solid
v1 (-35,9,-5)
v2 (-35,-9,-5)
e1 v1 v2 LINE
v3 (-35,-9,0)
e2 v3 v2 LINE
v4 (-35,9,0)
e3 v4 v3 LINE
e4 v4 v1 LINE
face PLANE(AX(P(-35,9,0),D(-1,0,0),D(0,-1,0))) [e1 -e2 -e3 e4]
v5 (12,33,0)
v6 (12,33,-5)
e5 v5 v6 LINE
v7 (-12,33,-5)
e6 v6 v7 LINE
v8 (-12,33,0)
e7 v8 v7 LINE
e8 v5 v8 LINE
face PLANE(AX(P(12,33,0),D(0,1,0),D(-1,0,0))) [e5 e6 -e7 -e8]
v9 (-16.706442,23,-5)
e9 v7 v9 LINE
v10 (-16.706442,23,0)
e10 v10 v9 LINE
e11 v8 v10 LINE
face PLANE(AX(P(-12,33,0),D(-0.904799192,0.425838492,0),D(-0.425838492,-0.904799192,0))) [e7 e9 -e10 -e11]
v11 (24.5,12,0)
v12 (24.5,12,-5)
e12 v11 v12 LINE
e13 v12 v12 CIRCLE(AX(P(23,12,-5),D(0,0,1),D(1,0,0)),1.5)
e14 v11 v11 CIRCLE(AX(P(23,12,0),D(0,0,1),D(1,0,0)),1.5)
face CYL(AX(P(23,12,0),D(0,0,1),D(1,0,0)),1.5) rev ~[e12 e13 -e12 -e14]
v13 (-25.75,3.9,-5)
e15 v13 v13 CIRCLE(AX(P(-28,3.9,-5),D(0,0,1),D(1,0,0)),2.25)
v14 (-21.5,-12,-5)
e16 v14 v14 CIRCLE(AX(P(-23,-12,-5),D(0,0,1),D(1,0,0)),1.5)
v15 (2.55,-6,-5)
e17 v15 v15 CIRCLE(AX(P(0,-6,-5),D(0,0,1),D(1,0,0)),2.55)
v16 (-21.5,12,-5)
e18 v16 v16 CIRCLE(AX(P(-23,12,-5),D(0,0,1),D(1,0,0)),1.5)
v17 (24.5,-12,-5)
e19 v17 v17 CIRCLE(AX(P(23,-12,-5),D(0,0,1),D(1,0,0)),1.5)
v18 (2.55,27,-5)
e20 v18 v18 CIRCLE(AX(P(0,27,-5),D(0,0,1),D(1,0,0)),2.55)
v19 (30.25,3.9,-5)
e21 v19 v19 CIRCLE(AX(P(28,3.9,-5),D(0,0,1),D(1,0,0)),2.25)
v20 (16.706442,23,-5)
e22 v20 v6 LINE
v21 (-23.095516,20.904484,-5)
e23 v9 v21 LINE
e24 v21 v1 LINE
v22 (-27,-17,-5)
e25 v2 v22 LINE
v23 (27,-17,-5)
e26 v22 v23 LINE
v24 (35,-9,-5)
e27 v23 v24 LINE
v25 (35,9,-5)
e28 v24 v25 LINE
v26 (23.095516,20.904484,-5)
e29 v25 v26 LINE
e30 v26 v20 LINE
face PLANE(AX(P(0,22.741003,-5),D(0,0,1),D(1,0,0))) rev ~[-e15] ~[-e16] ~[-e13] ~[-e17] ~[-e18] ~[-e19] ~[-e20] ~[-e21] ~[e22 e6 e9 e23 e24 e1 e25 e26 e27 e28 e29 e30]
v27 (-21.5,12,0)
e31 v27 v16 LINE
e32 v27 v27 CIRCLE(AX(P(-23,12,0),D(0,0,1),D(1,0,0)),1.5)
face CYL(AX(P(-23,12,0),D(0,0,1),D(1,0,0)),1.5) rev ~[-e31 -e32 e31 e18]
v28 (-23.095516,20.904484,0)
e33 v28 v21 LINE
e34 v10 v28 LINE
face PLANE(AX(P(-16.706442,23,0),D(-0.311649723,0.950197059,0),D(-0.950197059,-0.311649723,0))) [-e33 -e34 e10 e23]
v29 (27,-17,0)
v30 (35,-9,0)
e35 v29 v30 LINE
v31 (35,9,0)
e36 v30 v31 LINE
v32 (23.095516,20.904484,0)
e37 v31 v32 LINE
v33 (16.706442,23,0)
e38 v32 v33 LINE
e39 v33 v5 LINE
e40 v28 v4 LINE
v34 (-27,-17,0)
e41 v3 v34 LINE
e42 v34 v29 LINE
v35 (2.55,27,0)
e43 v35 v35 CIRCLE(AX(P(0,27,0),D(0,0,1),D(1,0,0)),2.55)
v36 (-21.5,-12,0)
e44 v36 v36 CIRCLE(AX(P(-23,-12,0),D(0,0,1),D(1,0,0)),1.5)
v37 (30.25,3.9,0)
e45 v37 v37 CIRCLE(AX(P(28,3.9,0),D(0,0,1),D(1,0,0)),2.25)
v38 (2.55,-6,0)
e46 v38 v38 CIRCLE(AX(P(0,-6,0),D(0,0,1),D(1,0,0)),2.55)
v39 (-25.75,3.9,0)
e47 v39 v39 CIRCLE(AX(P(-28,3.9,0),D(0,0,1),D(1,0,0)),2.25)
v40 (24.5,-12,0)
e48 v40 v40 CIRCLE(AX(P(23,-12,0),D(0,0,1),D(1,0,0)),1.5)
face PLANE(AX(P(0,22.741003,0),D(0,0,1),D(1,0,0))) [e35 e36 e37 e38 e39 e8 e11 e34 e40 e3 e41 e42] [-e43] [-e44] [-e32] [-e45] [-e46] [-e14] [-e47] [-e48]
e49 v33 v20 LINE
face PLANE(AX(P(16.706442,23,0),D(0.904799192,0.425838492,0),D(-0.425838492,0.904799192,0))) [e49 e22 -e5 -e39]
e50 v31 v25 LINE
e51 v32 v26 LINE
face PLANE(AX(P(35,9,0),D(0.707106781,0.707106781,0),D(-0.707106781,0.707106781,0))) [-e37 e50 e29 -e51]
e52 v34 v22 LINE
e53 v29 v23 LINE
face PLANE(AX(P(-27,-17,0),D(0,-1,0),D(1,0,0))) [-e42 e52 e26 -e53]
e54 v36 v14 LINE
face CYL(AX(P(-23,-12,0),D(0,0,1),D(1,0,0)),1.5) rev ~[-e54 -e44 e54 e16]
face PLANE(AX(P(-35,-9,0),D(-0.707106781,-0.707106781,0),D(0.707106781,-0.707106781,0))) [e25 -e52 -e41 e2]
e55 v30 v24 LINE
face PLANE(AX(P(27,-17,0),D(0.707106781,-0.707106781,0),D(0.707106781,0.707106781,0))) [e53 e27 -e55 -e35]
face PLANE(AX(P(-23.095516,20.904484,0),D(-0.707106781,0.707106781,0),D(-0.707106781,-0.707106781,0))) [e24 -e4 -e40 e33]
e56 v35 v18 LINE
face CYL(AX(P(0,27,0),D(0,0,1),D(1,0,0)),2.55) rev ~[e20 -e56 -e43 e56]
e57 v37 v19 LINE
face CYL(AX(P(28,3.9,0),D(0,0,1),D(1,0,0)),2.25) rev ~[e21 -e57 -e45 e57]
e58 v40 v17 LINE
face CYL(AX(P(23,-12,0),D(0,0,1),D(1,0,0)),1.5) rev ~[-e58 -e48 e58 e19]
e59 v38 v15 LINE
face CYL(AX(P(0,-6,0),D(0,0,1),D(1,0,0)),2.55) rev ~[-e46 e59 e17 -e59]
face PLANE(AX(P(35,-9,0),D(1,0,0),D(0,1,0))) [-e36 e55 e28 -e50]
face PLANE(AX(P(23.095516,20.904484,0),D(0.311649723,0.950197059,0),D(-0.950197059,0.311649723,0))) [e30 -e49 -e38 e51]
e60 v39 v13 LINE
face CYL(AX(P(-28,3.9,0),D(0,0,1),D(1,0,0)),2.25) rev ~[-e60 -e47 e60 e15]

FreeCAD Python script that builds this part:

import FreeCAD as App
import Part
import Sketcher

V = App.Vector
Q = App.Units.Quantity


def add_polygon(sketch, points):
    """Adds a closed chain of lines whose ends are joined by coincident constraints."""
    first, n = sketch.GeometryCount, len(points)
    for a, b in zip(points, points[1:] + points[:1]):
        sketch.addGeometry(Part.LineSegment(App.Vector(*a, 0), App.Vector(*b, 0)), False)
    for i in range(n):
        sketch.addConstraint(Sketcher.Constraint("Coincident", first + i, 2, first + (i + 1) % n, 1))

doc = App.newDocument("Part")
params = doc.addObject("Spreadsheet::Sheet", "Params")
for row, (alias, value) in enumerate([
    ("sketch1_diameter", "3 mm"),
    ("sketch1_diameter2", "4.5 mm"),
    ("sketch1_diameter3", "5.1 mm"),
    ("sketch1_width", "54 mm"),
    ("sketch1_width2", "24 mm"),
    ("pad1_length", "5 mm"),
], start=1):
    params.set(f"A{row}", alias)
    params.set(f"B{row}", "=" + value)
    params.setAlias(f"B{row}", alias)

body = doc.addObject("PartDesign::Body", "Body")

# Sketch on XY plane
sketch1 = body.newObject("Sketcher::SketchObject", "Sketch")
sketch1.AttachmentSupport = (doc.getObject("XY_Plane"), [""])
sketch1.MapMode = "FlatFace"
add_polygon(sketch1, [(-23.1, 20.9), (-35, 9), (-35, -9), (-27, -17), (27, -17), (35, -9), (35, 9), (23.1, 20.9), (16.7, 23), (12, 33), (-12, 33), (-16.7, 23)])  # lines 0-11
sketch1.addGeometry(Part.Circle(V(-23, -12, 0), V(0, 0, 1), 1.5), False)  # 12
sketch1.addGeometry(Part.Circle(V(-28, 3.9, 0), V(0, 0, 1), 2.2), False)  # 13
sketch1.addGeometry(Part.Circle(V(0, -6, 0), V(0, 0, 1), 2.5), False)  # 14
sketch1.addGeometry(Part.Circle(V(23, -12, 0), V(0, 0, 1), 1.5), False)  # 15
sketch1.addGeometry(Part.Circle(V(28, 3.9, 0), V(0, 0, 1), 2.2), False)  # 16
sketch1.addGeometry(Part.Circle(V(-23, 12, 0), V(0, 0, 1), 1.5), False)  # 17
sketch1.addGeometry(Part.Circle(V(23, 12, 0), V(0, 0, 1), 1.5), False)  # 18
sketch1.addGeometry(Part.Circle(V(0, 27, 0), V(0, 0, 1), 2.5), False)  # 19
sketch1.addConstraint([
    Sketcher.Constraint("Vertical", 1),
    Sketcher.Constraint("Horizontal", 3),
    Sketcher.Constraint("Vertical", 5),
    Sketcher.Constraint("Horizontal", 9),
    Sketcher.Constraint("Equal", 12, 15),
    Sketcher.Constraint("Equal", 13, 16),
    Sketcher.Constraint("Equal", 15, 17),
    Sketcher.Constraint("Equal", 17, 18),
    Sketcher.Constraint("Equal", 14, 19),
    Sketcher.Constraint("Symmetric", 15, 3, 17, 3, -1, 1),
    Sketcher.Constraint("Symmetric", 12, 3, 18, 3, -1, 1),
    Sketcher.Constraint("Symmetric", 0, 2, 4, 2, -1, 1),
    Sketcher.Constraint("Symmetric", 12, 3, 15, 3, -2),
    Sketcher.Constraint("Symmetric", 13, 3, 16, 3, -2),
    Sketcher.Constraint("Symmetric", 7, 2, 10, 2, -2),
    Sketcher.Constraint("Symmetric", 6, 2, 11, 2, -2),
    Sketcher.Constraint("PointOnObject", 14, 3, -2),
    Sketcher.Constraint("PointOnObject", 19, 3, -2),
    Sketcher.Constraint("Perpendicular", 0, 2),
    Sketcher.Constraint("Perpendicular", 2, 4),
    Sketcher.Constraint("Perpendicular", 4, 6),
    Sketcher.Constraint("Horizontal", 1, 2, 4, 2),
    Sketcher.Constraint("Horizontal", 0, 2, 5, 2),
    Sketcher.Constraint("Equal", 8, 10),
    Sketcher.Constraint("Diameter", 12, Q("3 mm")),
    Sketcher.Constraint("Diameter", 13, Q("4.5 mm")),
    Sketcher.Constraint("Diameter", 14, Q("5.1 mm")),
    Sketcher.Constraint("DistanceX", 3, 1, 3, 2, Q("54 mm")),
    Sketcher.Constraint("DistanceX", 9, 2, 9, 1, Q("24 mm")),
    Sketcher.Constraint("DistanceY", 1, 2, 1, 1, Q("18 mm")),
    Sketcher.Constraint("DistanceX", 12, 3, -1, 1, Q("23 mm")),
    Sketcher.Constraint("DistanceY", 12, 3, -1, 1, Q("12 mm")),
    Sketcher.Constraint("DistanceX", 13, 3, -1, 1, Q("28 mm")),
    Sketcher.Constraint("DistanceY", 14, 3, -1, 1, Q("6 mm")),
    Sketcher.Constraint("DistanceY", -1, 1, 19, 3, Q("27 mm")),
    Sketcher.Constraint("DistanceX", 0, 2, -1, 1, Q("35 mm")),
    Sketcher.Constraint("DistanceY", -1, 1, 7, 2, Q("23 mm")),
    Sketcher.Constraint("DistanceY", -1, 1, 8, 2, Q("33 mm")),
    Sketcher.Constraint("DistanceY", -1, 1, 13, 3, Q("3.9 mm")),
    Sketcher.Constraint("DistanceX", -1, 1, 7, 2, Q("16.706442 mm")),
    Sketcher.Constraint("Distance", 0, Q("16.835483 mm")),
])
sketch1.setExpression("Constraints[36]", "Params.sketch1_diameter")
sketch1.setExpression("Constraints[37]", "Params.sketch1_diameter2")
sketch1.setExpression("Constraints[38]", "Params.sketch1_diameter3")
sketch1.setExpression("Constraints[39]", "Params.sketch1_width")
sketch1.setExpression("Constraints[40]", "Params.sketch1_width2")
pad1 = body.newObject("PartDesign::Pad", "Pad")
pad1.Profile = sketch1
pad1.setExpression("Length", "Params.pad1_length")
pad1.Reversed = True

doc.recompute()
